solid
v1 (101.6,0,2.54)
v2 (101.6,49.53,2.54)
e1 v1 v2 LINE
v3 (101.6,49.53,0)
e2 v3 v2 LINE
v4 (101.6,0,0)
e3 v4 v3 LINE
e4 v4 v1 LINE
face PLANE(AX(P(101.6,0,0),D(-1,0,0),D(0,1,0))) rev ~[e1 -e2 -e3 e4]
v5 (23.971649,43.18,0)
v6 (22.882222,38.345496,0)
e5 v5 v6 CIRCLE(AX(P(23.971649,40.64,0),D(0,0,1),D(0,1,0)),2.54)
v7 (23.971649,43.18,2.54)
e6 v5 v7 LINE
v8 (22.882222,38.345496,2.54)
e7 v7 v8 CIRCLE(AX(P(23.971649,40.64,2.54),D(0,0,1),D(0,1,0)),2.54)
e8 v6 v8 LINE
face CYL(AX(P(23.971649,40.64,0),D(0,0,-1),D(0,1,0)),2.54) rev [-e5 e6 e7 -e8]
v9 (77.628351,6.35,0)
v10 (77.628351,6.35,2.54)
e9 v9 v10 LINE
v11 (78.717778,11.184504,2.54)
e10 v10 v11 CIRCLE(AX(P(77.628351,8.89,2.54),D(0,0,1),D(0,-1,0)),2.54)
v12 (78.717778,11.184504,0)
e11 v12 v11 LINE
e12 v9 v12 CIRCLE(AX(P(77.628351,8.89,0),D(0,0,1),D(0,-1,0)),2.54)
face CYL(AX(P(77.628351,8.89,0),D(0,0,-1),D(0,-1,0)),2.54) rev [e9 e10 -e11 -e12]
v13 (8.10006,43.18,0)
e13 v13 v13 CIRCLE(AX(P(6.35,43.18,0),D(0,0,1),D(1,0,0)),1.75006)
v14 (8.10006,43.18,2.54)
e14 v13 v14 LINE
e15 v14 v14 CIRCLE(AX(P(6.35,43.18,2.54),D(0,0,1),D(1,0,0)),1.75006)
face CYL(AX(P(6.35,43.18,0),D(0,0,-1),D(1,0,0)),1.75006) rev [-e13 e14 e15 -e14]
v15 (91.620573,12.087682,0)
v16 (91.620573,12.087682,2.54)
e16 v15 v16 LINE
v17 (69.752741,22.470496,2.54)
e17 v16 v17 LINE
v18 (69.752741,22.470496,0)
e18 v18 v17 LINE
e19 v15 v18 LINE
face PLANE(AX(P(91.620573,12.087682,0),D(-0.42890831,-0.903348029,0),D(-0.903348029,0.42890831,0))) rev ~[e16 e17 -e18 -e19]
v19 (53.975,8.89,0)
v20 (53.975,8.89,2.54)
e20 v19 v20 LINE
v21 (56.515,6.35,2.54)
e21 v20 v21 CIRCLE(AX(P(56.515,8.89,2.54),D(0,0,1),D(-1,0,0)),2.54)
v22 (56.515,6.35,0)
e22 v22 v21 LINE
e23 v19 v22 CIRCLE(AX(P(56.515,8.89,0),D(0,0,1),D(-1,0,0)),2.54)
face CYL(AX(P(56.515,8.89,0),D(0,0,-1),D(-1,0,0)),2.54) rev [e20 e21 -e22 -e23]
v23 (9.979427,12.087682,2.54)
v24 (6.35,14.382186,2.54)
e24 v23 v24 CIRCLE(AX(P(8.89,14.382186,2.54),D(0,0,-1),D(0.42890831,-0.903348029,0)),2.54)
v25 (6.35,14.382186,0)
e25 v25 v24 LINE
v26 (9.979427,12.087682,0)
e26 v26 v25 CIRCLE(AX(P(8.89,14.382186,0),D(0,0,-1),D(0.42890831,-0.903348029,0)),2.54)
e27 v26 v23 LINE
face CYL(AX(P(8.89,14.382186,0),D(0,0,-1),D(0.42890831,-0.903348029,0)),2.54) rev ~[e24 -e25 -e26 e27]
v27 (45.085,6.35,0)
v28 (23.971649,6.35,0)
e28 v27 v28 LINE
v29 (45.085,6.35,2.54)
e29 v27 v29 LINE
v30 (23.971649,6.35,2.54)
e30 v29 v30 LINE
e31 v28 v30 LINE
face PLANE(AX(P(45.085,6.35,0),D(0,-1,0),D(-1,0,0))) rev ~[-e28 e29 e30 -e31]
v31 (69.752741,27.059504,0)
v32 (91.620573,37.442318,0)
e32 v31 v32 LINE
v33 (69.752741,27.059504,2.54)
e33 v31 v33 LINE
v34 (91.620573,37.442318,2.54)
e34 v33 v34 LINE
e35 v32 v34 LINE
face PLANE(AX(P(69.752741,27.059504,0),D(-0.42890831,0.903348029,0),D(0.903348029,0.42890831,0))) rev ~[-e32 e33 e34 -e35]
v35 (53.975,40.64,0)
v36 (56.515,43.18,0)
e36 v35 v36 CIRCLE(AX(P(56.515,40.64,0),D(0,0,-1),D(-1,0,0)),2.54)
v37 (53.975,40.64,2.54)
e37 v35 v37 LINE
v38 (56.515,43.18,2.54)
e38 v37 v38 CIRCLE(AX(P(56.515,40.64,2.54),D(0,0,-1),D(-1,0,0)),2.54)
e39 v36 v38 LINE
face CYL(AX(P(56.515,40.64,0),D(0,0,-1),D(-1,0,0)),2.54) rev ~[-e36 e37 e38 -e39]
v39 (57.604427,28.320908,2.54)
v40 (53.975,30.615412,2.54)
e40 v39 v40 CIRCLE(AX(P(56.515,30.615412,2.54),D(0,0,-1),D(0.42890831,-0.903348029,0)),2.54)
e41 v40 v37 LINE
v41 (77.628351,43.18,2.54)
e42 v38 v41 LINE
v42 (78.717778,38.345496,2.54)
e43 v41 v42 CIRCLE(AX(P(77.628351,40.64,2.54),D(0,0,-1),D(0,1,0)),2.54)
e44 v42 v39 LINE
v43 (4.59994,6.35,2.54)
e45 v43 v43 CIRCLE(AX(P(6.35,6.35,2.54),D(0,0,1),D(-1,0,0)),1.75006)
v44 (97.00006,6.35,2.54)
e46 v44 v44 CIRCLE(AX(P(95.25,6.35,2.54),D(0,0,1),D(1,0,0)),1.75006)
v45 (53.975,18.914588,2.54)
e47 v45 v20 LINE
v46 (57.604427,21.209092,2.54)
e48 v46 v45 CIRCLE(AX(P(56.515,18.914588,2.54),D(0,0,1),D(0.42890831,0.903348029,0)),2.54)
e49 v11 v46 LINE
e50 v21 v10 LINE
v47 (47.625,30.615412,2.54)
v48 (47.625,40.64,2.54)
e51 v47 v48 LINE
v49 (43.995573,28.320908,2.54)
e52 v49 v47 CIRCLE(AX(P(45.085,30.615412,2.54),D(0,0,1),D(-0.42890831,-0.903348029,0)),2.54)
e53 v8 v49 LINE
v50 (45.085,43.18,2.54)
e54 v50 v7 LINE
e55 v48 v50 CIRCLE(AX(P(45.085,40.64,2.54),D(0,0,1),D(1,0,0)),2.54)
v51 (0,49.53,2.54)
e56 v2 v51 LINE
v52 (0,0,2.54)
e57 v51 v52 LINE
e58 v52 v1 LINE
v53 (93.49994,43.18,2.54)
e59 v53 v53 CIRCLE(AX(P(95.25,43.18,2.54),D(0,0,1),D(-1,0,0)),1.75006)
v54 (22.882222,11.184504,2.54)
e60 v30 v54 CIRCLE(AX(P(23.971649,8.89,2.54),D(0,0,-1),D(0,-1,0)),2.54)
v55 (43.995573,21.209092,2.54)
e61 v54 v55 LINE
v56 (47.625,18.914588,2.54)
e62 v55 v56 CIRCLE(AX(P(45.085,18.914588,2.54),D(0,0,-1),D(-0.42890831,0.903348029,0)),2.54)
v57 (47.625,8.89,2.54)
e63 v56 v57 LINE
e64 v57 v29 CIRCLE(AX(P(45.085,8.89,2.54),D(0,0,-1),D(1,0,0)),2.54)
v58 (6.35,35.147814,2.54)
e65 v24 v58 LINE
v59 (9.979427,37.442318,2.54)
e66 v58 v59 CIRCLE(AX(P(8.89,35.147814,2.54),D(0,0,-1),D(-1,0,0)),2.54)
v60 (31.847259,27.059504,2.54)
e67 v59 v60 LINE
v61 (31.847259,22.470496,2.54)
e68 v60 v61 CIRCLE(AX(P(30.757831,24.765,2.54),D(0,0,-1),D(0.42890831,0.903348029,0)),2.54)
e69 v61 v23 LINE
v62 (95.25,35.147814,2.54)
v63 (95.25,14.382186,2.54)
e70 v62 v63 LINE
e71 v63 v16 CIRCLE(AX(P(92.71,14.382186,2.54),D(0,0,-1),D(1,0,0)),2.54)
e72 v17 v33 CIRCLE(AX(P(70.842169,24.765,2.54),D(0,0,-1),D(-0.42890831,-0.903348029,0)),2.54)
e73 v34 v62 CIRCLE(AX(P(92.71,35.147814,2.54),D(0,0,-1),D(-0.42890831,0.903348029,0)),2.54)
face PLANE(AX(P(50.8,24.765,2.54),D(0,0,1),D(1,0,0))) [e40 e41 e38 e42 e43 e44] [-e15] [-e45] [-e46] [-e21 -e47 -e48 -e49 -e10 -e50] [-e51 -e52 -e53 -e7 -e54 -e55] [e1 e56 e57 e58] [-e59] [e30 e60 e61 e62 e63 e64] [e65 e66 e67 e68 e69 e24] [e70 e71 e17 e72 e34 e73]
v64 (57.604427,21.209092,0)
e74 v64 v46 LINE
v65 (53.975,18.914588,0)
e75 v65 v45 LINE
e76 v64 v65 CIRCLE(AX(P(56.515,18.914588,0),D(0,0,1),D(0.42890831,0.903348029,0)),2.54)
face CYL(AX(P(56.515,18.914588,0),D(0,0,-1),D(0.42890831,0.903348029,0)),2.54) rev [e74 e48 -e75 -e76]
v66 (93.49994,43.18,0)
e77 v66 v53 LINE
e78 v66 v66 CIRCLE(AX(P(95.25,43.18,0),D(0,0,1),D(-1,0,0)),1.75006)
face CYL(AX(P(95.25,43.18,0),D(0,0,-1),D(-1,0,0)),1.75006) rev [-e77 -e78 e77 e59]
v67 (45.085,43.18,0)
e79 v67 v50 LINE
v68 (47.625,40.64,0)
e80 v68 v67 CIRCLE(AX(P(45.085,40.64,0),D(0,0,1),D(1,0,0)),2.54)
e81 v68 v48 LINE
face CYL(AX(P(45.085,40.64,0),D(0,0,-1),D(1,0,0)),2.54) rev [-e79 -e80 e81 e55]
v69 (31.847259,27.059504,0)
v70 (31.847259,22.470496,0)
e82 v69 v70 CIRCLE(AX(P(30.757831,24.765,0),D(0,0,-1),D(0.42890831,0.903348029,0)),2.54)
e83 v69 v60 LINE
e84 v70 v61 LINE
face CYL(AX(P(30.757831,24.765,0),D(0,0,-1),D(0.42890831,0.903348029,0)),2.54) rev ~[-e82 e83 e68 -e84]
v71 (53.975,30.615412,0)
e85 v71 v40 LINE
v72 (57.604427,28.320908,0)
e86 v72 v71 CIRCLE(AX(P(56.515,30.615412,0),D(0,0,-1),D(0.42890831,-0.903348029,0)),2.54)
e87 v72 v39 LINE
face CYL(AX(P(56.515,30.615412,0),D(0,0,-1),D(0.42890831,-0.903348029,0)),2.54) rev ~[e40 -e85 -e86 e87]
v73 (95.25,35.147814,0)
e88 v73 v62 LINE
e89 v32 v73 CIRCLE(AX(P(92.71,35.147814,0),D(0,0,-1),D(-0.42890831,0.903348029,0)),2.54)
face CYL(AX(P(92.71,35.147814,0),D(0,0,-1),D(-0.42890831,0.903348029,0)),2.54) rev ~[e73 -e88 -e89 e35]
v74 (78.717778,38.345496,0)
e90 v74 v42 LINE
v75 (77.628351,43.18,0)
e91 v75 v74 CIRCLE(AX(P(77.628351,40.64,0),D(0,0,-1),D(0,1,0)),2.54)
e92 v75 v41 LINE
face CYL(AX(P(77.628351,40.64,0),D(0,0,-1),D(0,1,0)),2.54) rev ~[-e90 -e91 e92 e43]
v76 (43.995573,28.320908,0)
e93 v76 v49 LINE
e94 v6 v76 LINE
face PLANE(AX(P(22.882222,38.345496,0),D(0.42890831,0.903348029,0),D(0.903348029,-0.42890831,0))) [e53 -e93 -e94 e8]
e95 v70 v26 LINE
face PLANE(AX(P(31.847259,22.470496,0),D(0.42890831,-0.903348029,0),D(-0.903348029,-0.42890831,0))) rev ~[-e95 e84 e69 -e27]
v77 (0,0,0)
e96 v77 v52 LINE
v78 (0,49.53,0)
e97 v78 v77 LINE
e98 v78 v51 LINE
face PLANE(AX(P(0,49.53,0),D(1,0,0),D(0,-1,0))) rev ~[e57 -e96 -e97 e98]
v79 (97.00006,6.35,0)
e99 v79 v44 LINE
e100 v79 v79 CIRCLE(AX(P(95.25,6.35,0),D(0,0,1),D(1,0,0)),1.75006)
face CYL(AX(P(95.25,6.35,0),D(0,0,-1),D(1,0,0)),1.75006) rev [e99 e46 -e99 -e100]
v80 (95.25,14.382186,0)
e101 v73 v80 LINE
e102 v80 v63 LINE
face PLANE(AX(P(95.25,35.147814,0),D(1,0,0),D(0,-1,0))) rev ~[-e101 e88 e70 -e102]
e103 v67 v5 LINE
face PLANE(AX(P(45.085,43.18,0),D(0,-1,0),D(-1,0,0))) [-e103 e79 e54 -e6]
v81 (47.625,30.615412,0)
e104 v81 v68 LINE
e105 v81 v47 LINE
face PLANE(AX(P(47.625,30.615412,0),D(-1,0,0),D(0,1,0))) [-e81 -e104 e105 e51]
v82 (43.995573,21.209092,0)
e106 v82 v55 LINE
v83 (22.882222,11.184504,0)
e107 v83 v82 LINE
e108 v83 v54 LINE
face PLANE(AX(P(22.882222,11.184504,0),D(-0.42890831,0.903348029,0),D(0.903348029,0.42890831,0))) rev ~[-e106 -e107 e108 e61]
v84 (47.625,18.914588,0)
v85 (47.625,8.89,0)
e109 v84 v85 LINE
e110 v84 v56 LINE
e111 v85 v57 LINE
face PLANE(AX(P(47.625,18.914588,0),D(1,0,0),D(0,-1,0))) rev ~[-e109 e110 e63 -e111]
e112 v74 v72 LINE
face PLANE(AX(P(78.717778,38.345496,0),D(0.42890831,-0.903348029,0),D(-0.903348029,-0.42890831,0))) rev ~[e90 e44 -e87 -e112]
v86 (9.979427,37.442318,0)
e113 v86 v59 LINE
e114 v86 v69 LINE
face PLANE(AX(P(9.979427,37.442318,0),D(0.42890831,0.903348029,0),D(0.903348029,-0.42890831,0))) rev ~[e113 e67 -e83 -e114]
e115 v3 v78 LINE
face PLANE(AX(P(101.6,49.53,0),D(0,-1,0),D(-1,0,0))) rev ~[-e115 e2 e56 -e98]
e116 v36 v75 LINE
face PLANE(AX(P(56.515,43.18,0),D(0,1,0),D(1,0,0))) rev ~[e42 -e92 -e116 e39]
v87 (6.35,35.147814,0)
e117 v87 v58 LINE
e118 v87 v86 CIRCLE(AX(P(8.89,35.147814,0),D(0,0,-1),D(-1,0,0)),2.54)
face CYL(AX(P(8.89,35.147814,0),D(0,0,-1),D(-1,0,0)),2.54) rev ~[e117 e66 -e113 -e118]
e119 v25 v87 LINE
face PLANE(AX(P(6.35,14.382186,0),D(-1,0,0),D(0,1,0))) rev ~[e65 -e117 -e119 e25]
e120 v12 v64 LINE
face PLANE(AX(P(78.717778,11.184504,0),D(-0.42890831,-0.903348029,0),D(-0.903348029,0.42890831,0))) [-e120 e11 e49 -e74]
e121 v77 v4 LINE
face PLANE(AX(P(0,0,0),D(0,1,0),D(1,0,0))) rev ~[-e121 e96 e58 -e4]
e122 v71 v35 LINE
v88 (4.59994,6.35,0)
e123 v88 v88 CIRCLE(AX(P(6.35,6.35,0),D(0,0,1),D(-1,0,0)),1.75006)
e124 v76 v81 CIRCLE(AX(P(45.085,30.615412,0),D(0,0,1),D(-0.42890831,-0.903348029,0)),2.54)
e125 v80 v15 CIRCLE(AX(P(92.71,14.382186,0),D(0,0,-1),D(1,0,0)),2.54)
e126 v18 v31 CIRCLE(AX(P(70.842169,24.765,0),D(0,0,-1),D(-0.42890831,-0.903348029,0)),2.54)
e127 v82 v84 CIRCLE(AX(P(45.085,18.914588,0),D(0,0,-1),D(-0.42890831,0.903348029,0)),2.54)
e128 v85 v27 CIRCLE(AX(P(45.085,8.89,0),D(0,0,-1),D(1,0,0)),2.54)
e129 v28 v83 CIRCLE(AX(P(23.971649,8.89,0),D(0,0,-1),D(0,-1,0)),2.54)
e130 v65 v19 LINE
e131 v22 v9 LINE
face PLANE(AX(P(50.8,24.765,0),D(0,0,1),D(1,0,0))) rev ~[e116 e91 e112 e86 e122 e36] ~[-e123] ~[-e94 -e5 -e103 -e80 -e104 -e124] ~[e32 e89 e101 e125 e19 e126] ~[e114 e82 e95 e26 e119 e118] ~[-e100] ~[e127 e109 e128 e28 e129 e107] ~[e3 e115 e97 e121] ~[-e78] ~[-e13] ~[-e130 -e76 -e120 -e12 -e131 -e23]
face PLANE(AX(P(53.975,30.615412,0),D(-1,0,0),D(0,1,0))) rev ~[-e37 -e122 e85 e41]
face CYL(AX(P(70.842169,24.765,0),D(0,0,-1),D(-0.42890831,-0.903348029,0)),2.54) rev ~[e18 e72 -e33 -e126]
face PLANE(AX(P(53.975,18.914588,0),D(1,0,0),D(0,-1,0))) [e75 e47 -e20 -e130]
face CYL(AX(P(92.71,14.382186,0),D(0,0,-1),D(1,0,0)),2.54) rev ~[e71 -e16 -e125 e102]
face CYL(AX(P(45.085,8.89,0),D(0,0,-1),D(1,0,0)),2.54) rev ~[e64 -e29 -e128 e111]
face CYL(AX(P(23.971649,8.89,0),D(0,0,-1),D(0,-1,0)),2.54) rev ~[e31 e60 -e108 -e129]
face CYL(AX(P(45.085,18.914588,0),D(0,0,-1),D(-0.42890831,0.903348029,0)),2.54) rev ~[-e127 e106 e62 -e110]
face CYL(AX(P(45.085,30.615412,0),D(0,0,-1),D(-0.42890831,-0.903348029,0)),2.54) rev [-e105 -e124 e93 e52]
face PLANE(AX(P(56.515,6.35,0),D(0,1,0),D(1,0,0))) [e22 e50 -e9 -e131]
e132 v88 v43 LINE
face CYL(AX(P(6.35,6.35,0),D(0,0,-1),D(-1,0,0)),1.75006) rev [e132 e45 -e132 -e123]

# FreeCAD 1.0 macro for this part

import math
import FreeCAD as App
import Part
import Sketcher
from FreeCAD import Vector
Q = App.Units.Quantity

doc = App.newDocument("Part")
body = doc.addObject("PartDesign::Body", "Body")

sketch1 = body.newObject("Sketcher::SketchObject", "Sketch")
sketch1.AttachmentSupport = (doc.getObject("XY_Plane"), [""])
sketch1.MapMode = "FlatFace"
sketch1.addGeometry([
    Part.LineSegment(Vector(101.6, 0, 0), Vector(101.6, 49.5, 0)),
    Part.LineSegment(Vector(101.6, 49.5, 0), Vector(0, 49.5, 0)),
    Part.LineSegment(Vector(0, 49.5, 0), Vector(0, 0, 0)),
    Part.LineSegment(Vector(0, 0, 0), Vector(101.6, 0, 0)),
    Part.Circle(Vector(6.3, 6.3, 0), Vector(0, 0, 1), 1.8),
    Part.ArcOfCircle(Part.Circle(Vector(45.1, 18.9, 0), Vector(0, 0, 1), 2.5), math.radians(0), math.radians(115)),
    Part.LineSegment(Vector(47.6, 18.9, 0), Vector(47.6, 8.9, 0)),
    Part.ArcOfCircle(Part.Circle(Vector(45.1, 8.9, 0), Vector(0, 0, 1), 2.5), math.radians(-90), math.radians(0)),
    Part.LineSegment(Vector(45.1, 6.3, 0), Vector(24, 6.3, 0)),
    Part.ArcOfCircle(Part.Circle(Vector(24, 8.9, 0), Vector(0, 0, 1), 2.5), math.radians(115), math.radians(270)),
    Part.LineSegment(Vector(22.9, 11.2, 0), Vector(44, 21.2, 0)),
    Part.LineSegment(Vector(57.6, 21.2, 0), Vector(78.7, 11.2, 0)),
    Part.ArcOfCircle(Part.Circle(Vector(77.6, 8.9, 0), Vector(0, 0, 1), 2.5), math.radians(-90), math.radians(65)),
    Part.LineSegment(Vector(77.6, 6.3, 0), Vector(56.5, 6.3, 0)),
    Part.ArcOfCircle(Part.Circle(Vector(56.5, 8.9, 0), Vector(0, 0, 1), 2.5), math.radians(-180), math.radians(-90)),
    Part.LineSegment(Vector(54, 8.9, 0), Vector(54, 18.9, 0)),
    Part.ArcOfCircle(Part.Circle(Vector(56.5, 18.9, 0), Vector(0, 0, 1), 2.5), math.radians(65), math.radians(180)),
    Part.Circle(Vector(95.2, 6.3, 0), Vector(0, 0, 1), 1.8),
    Part.ArcOfCircle(Part.Circle(Vector(92.7, 14.4, 0), Vector(0, 0, 1), 2.5), math.radians(-115), math.radians(0)),
    Part.LineSegment(Vector(91.6, 12.1, 0), Vector(69.8, 22.5, 0)),
    Part.ArcOfCircle(Part.Circle(Vector(70.8, 24.8, 0), Vector(0, 0, 1), 2.5), math.radians(115), math.radians(245)),
    Part.LineSegment(Vector(69.8, 27.1, 0), Vector(91.6, 37.4, 0)),
    Part.ArcOfCircle(Part.Circle(Vector(92.7, 35.1, 0), Vector(0, 0, 1), 2.5), math.radians(0), math.radians(115)),
    Part.LineSegment(Vector(95.2, 35.1, 0), Vector(95.2, 14.4, 0)),
    Part.ArcOfCircle(Part.Circle(Vector(8.9, 35.1, 0), Vector(0, 0, 1), 2.5), math.radians(65), math.radians(180)),
    Part.LineSegment(Vector(10, 37.4, 0), Vector(31.8, 27.1, 0)),
    Part.ArcOfCircle(Part.Circle(Vector(30.8, 24.8, 0), Vector(0, 0, 1), 2.5), math.radians(-65), math.radians(65)),
    Part.LineSegment(Vector(31.8, 22.5, 0), Vector(10, 12.1, 0)),
    Part.ArcOfCircle(Part.Circle(Vector(8.9, 14.4, 0), Vector(0, 0, 1), 2.5), math.radians(180), math.radians(295)),
    Part.LineSegment(Vector(6.3, 14.4, 0), Vector(6.3, 35.1, 0)),
    Part.Circle(Vector(6.3, 43.2, 0), Vector(0, 0, 1), 1.8),
    Part.LineSegment(Vector(44, 28.3, 0), Vector(22.9, 38.3, 0)),
    Part.ArcOfCircle(Part.Circle(Vector(24, 40.6, 0), Vector(0, 0, 1), 2.5), math.radians(90), math.radians(245)),
    Part.LineSegment(Vector(24, 43.2, 0), Vector(45.1, 43.2, 0)),
    Part.ArcOfCircle(Part.Circle(Vector(45.1, 40.6, 0), Vector(0, 0, 1), 2.5), math.radians(0), math.radians(90)),
    Part.LineSegment(Vector(47.6, 40.6, 0), Vector(47.6, 30.6, 0)),
    Part.ArcOfCircle(Part.Circle(Vector(45.1, 30.6, 0), Vector(0, 0, 1), 2.5), math.radians(-115), math.radians(0)),
    Part.ArcOfCircle(Part.Circle(Vector(56.5, 30.6, 0), Vector(0, 0, 1), 2.5), math.radians(180), math.radians(295)),
    Part.LineSegment(Vector(54, 30.6, 0), Vector(54, 40.6, 0)),
    Part.ArcOfCircle(Part.Circle(Vector(56.5, 40.6, 0), Vector(0, 0, 1), 2.5), math.radians(90), math.radians(180)),
    Part.LineSegment(Vector(56.5, 43.2, 0), Vector(77.6, 43.2, 0)),
    Part.ArcOfCircle(Part.Circle(Vector(77.6, 40.6, 0), Vector(0, 0, 1), 2.5), math.radians(-65), math.radians(90)),
    Part.LineSegment(Vector(78.7, 38.3, 0), Vector(57.6, 28.3, 0)),
    Part.Circle(Vector(95.2, 43.2, 0), Vector(0, 0, 1), 1.8),
], False)
sketch1.addConstraint([
    Sketcher.Constraint("Coincident", 0, 2, 1, 1),
    Sketcher.Constraint("Coincident", 1, 2, 2, 1),
    Sketcher.Constraint("Coincident", 2, 2, 3, 1),
    Sketcher.Constraint("Coincident", 3, 2, 0, 1),
    Sketcher.Constraint("Tangent", 5, 1, 6, 1),
    Sketcher.Constraint("Tangent", 6, 2, 7, 2),
    Sketcher.Constraint("Tangent", 7, 1, 8, 1),
    Sketcher.Constraint("Tangent", 8, 2, 9, 2),
    Sketcher.Constraint("Tangent", 9, 1, 10, 1),
    Sketcher.Constraint("Tangent", 10, 2, 5, 2),
    Sketcher.Constraint("Tangent", 11, 2, 12, 2),
    Sketcher.Constraint("Tangent", 12, 1, 13, 1),
    Sketcher.Constraint("Tangent", 13, 2, 14, 2),
    Sketcher.Constraint("Tangent", 14, 1, 15, 1),
    Sketcher.Constraint("Tangent", 15, 2, 16, 2),
    Sketcher.Constraint("Tangent", 16, 1, 11, 1),
    Sketcher.Constraint("Tangent", 18, 1, 19, 1),
    Sketcher.Constraint("Tangent", 19, 2, 20, 2),
    Sketcher.Constraint("Tangent", 20, 1, 21, 1),
    Sketcher.Constraint("Tangent", 21, 2, 22, 2),
    Sketcher.Constraint("Tangent", 22, 1, 23, 1),
    Sketcher.Constraint("Tangent", 23, 2, 18, 2),
    Sketcher.Constraint("Tangent", 24, 1, 25, 1),
    Sketcher.Constraint("Tangent", 25, 2, 26, 2),
    Sketcher.Constraint("Tangent", 26, 1, 27, 1),
    Sketcher.Constraint("Tangent", 27, 2, 28, 2),
    Sketcher.Constraint("Tangent", 28, 1, 29, 1),
    Sketcher.Constraint("Tangent", 29, 2, 24, 2),
    Sketcher.Constraint("Tangent", 31, 2, 32, 2),
    Sketcher.Constraint("Tangent", 32, 1, 33, 1),
    Sketcher.Constraint("Tangent", 33, 2, 34, 2),
    Sketcher.Constraint("Tangent", 34, 1, 35, 1),
    Sketcher.Constraint("Tangent", 35, 2, 36, 2),
    Sketcher.Constraint("Tangent", 36, 1, 31, 1),
    Sketcher.Constraint("Tangent", 37, 1, 38, 1),
    Sketcher.Constraint("Tangent", 38, 2, 39, 2),
    Sketcher.Constraint("Tangent", 39, 1, 40, 1),
    Sketcher.Constraint("Tangent", 40, 2, 41, 2),
    Sketcher.Constraint("Tangent", 41, 1, 42, 1),
    Sketcher.Constraint("Tangent", 42, 2, 37, 2),
    Sketcher.Constraint("Vertical", 0),
    Sketcher.Constraint("Horizontal", 1),
    Sketcher.Constraint("Vertical", 2),
    Sketcher.Constraint("Horizontal", 3),
    Sketcher.Constraint("Vertical", 6),
    Sketcher.Constraint("Horizontal", 8),
    Sketcher.Constraint("Horizontal", 13),
    Sketcher.Constraint("Vertical", 15),
    Sketcher.Constraint("Vertical", 23),
    Sketcher.Constraint("Vertical", 29),
    Sketcher.Constraint("Horizontal", 33),
    Sketcher.Constraint("Vertical", 35),
    Sketcher.Constraint("Vertical", 38),
    Sketcher.Constraint("Horizontal", 40),
    Sketcher.Constraint("Coincident", 2, 2, -1, 1),
    Sketcher.Constraint("Equal", 5, 7),
    Sketcher.Constraint("Equal", 7, 9),
    Sketcher.Constraint("Equal", 9, 12),
    Sketcher.Constraint("Equal", 12, 14),
    Sketcher.Constraint("Equal", 14, 16),
    Sketcher.Constraint("Equal", 4, 17),
    Sketcher.Constraint("Equal", 16, 18),
    Sketcher.Constraint("Equal", 18, 20),
    Sketcher.Constraint("Equal", 20, 22),
    Sketcher.Constraint("Equal", 22, 24),
    Sketcher.Constraint("Equal", 24, 26),
    Sketcher.Constraint("Equal", 26, 28),
    Sketcher.Constraint("Equal", 17, 30),
    Sketcher.Constraint("Equal", 28, 32),
    Sketcher.Constraint("Equal", 32, 34),
    Sketcher.Constraint("Equal", 34, 36),
    Sketcher.Constraint("Equal", 36, 37),
    Sketcher.Constraint("Equal", 37, 39),
    Sketcher.Constraint("Equal", 39, 41),
    Sketcher.Constraint("Equal", 30, 43),
    Sketcher.Constraint("Parallel", 11, 19),
    Sketcher.Constraint("Parallel", 10, 21),
    Sketcher.Constraint("Parallel", 19, 25),
    Sketcher.Constraint("Parallel", 21, 27),
    Sketcher.Constraint("Parallel", 25, 31),
    Sketcher.Constraint("Parallel", 27, 42),
    Sketcher.Constraint("Horizontal", 9, 3, 12, 3),
    Sketcher.Constraint("Horizontal", 5, 3, 16, 3),
    Sketcher.Constraint("Horizontal", 4, 3, 17, 3),
    Sketcher.Constraint("Horizontal", 22, 3, 24, 3),
    Sketcher.Constraint("Horizontal", 20, 3, 26, 3),
    Sketcher.Constraint("Horizontal", 18, 3, 28, 3),
    Sketcher.Constraint("Horizontal", 36, 3, 37, 3),
    Sketcher.Constraint("Horizontal", 34, 3, 39, 3),
    Sketcher.Constraint("Horizontal", 30, 3, 43, 3),
    Sketcher.Constraint("Horizontal", 17, 3, 7, 1),
    Sketcher.Constraint("Horizontal", 43, 3, 32, 1),
    Sketcher.Constraint("Vertical", 4, 3, 30, 3),
    Sketcher.Constraint("Vertical", 9, 3, 32, 3),
    Sketcher.Constraint("Vertical", 7, 3, 34, 3),
    Sketcher.Constraint("Vertical", 16, 3, 37, 3),
    Sketcher.Constraint("Vertical", 17, 3, 43, 3),
    Sketcher.Constraint("Vertical", 43, 3, 22, 1),
    Sketcher.Constraint("Vertical", 30, 3, 28, 1),
    Sketcher.Constraint("Radius", 5, Q("0.1 in")),
    Sketcher.Constraint("DistanceX", 1, 2, 1, 1, Q("4 in")),
    Sketcher.Constraint("Diameter", 4, Q("0.1378 in")),
    Sketcher.Constraint("DistanceY", 0, 1, 0, 2, Q("1.95 in")),
    Sketcher.Constraint("DistanceY", -1, 1, 30, 3, Q("1.7 in")),
    Sketcher.Constraint("DistanceX", -1, 1, 4, 3, Q("0.25 in")),
    Sketcher.Constraint("DistanceY", -1, 1, 4, 3, Q("0.25 in")),
    Sketcher.Constraint("DistanceX", -1, 1, 17, 3, Q("3.75 in")),
    Sketcher.Constraint("DistanceX", -1, 1, 5, 3, Q("1.775 in")),
    Sketcher.Constraint("DistanceX", -1, 1, 14, 3, Q("2.225 in")),
    Sketcher.Constraint("DistanceY", -1, 1, 20, 3, Q("0.975 in")),
    Sketcher.Constraint("DistanceX", 8, 2, 8, 1, 21.113351),
    Sketcher.Constraint("DistanceY", 23, 2, 23, 1, 20.765628),
    Sketcher.Constraint("DistanceY", 6, 2, 6, 1, 10.024588),
])
pad1 = body.newObject("PartDesign::Pad", "Pad")
pad1.Profile = sketch1
pad1.Length = Q("0.1 in")

doc.recompute()
